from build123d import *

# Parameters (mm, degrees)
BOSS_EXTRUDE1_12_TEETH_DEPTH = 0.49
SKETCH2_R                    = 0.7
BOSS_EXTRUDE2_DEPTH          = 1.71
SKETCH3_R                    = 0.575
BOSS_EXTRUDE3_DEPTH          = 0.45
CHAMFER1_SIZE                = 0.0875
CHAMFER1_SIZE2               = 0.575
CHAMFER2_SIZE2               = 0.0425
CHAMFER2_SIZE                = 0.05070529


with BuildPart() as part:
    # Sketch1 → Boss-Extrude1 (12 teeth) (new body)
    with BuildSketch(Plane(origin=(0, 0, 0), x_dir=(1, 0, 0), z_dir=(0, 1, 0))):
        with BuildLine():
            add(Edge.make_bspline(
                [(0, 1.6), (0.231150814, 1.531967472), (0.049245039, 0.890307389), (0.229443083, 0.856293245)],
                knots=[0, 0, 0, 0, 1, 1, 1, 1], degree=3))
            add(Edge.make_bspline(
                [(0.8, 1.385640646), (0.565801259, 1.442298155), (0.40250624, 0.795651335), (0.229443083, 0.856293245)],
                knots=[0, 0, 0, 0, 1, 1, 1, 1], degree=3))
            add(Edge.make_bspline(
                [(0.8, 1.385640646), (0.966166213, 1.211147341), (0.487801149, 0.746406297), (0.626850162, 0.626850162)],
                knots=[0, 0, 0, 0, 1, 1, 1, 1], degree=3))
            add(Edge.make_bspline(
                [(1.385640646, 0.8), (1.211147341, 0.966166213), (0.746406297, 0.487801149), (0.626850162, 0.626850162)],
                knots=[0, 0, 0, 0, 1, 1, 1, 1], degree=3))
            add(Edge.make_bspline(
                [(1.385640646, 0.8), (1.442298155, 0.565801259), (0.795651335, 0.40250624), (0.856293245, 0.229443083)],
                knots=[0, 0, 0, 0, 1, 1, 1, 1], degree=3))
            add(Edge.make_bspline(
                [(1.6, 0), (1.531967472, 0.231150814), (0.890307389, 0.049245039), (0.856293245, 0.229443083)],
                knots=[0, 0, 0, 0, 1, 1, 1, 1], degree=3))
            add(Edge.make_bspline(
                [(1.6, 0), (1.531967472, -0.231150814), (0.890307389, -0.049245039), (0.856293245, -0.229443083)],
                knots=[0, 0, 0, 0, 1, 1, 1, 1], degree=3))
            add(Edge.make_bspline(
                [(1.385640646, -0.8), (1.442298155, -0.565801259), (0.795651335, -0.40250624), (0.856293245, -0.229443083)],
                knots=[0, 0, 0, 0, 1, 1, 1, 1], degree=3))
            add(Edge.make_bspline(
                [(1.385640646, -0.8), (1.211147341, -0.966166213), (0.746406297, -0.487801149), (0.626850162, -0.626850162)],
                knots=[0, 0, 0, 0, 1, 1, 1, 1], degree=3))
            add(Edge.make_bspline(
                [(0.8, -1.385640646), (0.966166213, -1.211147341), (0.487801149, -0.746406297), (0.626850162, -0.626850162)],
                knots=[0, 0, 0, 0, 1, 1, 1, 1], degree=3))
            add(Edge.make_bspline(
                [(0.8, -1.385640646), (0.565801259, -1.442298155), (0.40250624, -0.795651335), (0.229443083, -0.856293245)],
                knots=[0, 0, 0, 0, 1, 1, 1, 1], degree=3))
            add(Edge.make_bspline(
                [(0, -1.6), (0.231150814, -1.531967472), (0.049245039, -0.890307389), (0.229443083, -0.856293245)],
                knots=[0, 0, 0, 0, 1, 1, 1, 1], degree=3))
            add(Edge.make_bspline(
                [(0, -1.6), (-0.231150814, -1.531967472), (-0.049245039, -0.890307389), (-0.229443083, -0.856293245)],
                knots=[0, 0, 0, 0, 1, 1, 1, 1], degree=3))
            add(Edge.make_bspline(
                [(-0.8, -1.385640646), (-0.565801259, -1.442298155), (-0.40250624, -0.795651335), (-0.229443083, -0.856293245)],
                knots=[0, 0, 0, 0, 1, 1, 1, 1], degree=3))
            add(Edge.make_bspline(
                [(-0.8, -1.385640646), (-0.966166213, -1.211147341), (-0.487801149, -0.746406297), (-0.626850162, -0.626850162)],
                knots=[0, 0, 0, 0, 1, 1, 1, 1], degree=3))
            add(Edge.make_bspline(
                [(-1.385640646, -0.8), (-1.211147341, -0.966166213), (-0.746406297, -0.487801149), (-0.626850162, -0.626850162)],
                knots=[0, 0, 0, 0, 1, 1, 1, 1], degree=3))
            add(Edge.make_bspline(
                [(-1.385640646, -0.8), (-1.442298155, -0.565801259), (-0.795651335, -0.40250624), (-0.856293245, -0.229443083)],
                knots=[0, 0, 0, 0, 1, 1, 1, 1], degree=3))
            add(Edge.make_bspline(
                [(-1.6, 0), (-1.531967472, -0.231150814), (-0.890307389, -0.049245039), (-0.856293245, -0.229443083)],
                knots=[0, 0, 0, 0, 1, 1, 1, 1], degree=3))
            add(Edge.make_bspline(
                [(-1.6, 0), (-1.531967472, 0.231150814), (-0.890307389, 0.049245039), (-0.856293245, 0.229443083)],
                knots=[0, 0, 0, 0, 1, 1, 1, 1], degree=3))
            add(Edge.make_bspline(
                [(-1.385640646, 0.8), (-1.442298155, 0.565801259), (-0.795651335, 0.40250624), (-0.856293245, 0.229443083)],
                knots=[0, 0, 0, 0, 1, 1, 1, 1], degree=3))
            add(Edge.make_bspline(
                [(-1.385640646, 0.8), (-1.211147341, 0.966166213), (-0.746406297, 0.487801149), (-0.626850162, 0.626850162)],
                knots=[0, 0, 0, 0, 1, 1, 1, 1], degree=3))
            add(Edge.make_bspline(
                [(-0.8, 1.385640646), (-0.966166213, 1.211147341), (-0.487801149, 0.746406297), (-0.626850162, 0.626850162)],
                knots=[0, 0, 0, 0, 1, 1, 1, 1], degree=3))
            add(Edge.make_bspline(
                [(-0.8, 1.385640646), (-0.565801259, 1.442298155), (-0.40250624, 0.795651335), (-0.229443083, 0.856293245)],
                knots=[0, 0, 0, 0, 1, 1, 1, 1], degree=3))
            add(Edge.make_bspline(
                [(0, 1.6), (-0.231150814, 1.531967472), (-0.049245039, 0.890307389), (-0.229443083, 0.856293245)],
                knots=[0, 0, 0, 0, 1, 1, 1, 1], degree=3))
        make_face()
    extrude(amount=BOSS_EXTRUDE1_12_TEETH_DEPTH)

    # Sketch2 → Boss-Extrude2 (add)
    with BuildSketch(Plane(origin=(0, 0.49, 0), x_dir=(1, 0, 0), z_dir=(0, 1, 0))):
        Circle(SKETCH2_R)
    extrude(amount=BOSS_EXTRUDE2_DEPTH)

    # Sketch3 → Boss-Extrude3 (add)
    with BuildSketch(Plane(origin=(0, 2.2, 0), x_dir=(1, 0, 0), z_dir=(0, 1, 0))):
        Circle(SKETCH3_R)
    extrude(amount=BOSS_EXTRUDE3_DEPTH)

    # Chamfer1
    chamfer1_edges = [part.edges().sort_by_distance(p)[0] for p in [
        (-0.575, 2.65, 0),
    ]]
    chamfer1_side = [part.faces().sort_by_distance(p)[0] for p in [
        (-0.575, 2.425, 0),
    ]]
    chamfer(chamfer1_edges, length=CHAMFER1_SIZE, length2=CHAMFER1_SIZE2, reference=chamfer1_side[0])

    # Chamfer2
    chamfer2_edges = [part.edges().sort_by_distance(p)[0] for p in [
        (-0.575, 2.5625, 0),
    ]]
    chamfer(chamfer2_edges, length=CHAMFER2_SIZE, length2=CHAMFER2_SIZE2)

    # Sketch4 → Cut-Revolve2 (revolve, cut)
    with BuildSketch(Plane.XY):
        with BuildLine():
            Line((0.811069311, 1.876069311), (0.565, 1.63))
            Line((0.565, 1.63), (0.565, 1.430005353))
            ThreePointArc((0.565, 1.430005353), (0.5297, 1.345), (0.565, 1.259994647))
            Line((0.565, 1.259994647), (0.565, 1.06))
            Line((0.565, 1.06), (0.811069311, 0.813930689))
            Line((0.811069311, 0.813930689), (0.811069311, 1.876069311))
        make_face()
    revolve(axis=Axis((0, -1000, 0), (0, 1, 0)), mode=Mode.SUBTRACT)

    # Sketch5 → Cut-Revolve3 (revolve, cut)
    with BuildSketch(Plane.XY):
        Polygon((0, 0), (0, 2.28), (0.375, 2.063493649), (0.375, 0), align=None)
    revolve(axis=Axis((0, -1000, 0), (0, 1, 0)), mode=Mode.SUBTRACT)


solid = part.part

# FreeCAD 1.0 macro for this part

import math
import FreeCAD as App
import Part
import Sketcher

V = App.Vector
Q = App.Units.Quantity


def edges_at(feature, points):
    """Names of the edges that pass closest to the given points."""
    edges = feature.Shape.Edges
    near = lambda p: min(range(len(edges)), key=lambda i: edges[i].distToShape(Part.Vertex(*p))[0])
    return sorted({f"Edge{near(p) + 1}" for p in points})

doc = App.newDocument("Part")
params = doc.addObject("Spreadsheet::Sheet", "Params")
for row, (alias, value) in enumerate([
    ("pad1_length", "0.49 mm"),
    ("sketch2_diameter", "1.4 mm"),
    ("pad2_length", "1.71 mm"),
    ("sketch3_diameter", "1.15 mm"),
    ("pad3_length", "0.45 mm"),
    ("chamfer_size", "0.0875 mm"),
    ("chamfer_size2", "0.575 mm"),
    ("chamfer2_size", "0.050705 mm"),
    ("chamfer2_size2", "0.0425 mm"),
    ("sketch4_radius", "0.12 mm"),
    ("groove_angle", "360 deg"),
    ("sketch5_height", "2.28 mm"),
    ("groove2_angle", "360 deg"),
], start=1):
    params.set(f"A{row}", alias)
    params.set(f"B{row}", "=" + value)
    params.setAlias(f"B{row}", alias)

body = doc.addObject("PartDesign::Body", "Body")

sketch1 = body.newObject("Sketcher::SketchObject", "Sketch")
sketch1.AttachmentSupport = (doc.getObject("XZ_Plane"), [""])
sketch1.MapMode = "FlatFace"
sketch1.addGeometry(Part.BSplineCurve([V(0, -1.6, 0), V(0.231151, -1.531967, 0), V(0.049245, -0.890307, 0), V(0.229443, -0.856293, 0)], [4, 4], [0, 1], False, 3, [1, 1, 1, 1], False), False)
sketch1.addGeometry(Part.BSplineCurve([V(0, -1.6, 0), V(-0.231151, -1.531967, 0), V(-0.049245, -0.890307, 0), V(-0.229443, -0.856293, 0)], [4, 4], [0, 1], False, 3, [1, 1, 1, 1], False), False)
sketch1.addGeometry(Part.BSplineCurve([V(-0.8, -1.385641, 0), V(-0.565801, -1.442298, 0), V(-0.402506, -0.795651, 0), V(-0.229443, -0.856293, 0)], [4, 4], [0, 1], False, 3, [1, 1, 1, 1], False), False)
sketch1.addGeometry(Part.BSplineCurve([V(-0.8, -1.385641, 0), V(-0.966166, -1.211147, 0), V(-0.487801, -0.746406, 0), V(-0.62685, -0.62685, 0)], [4, 4], [0, 1], False, 3, [1, 1, 1, 1], False), False)
sketch1.addGeometry(Part.BSplineCurve([V(-1.385641, -0.8, 0), V(-1.211147, -0.966166, 0), V(-0.746406, -0.487801, 0), V(-0.62685, -0.62685, 0)], [4, 4], [0, 1], False, 3, [1, 1, 1, 1], False), False)
sketch1.addGeometry(Part.BSplineCurve([V(-1.385641, -0.8, 0), V(-1.442298, -0.565801, 0), V(-0.795651, -0.402506, 0), V(-0.856293, -0.229443, 0)], [4, 4], [0, 1], False, 3, [1, 1, 1, 1], False), False)
sketch1.addGeometry(Part.BSplineCurve([V(-1.6, 0, 0), V(-1.531967, -0.231151, 0), V(-0.890307, -0.049245, 0), V(-0.856293, -0.229443, 0)], [4, 4], [0, 1], False, 3, [1, 1, 1, 1], False), False)
sketch1.addGeometry(Part.BSplineCurve([V(-1.6, 0, 0), V(-1.531967, 0.231151, 0), V(-0.890307, 0.049245, 0), V(-0.856293, 0.229443, 0)], [4, 4], [0, 1], False, 3, [1, 1, 1, 1], False), False)
sketch1.addGeometry(Part.BSplineCurve([V(-1.385641, 0.8, 0), V(-1.442298, 0.565801, 0), V(-0.795651, 0.402506, 0), V(-0.856293, 0.229443, 0)], [4, 4], [0, 1], False, 3, [1, 1, 1, 1], False), False)
sketch1.addGeometry(Part.BSplineCurve([V(-1.385641, 0.8, 0), V(-1.211147, 0.966166, 0), V(-0.746406, 0.487801, 0), V(-0.62685, 0.62685, 0)], [4, 4], [0, 1], False, 3, [1, 1, 1, 1], False), False)
sketch1.addGeometry(Part.BSplineCurve([V(-0.8, 1.385641, 0), V(-0.966166, 1.211147, 0), V(-0.487801, 0.746406, 0), V(-0.62685, 0.62685, 0)], [4, 4], [0, 1], False, 3, [1, 1, 1, 1], False), False)
sketch1.addGeometry(Part.BSplineCurve([V(-0.8, 1.385641, 0), V(-0.565801, 1.442298, 0), V(-0.402506, 0.795651, 0), V(-0.229443, 0.856293, 0)], [4, 4], [0, 1], False, 3, [1, 1, 1, 1], False), False)
sketch1.addGeometry(Part.BSplineCurve([V(0, 1.6, 0), V(-0.231151, 1.531967, 0), V(-0.049245, 0.890307, 0), V(-0.229443, 0.856293, 0)], [4, 4], [0, 1], False, 3, [1, 1, 1, 1], False), False)
sketch1.addGeometry(Part.BSplineCurve([V(0, 1.6, 0), V(0.231151, 1.531967, 0), V(0.049245, 0.890307, 0), V(0.229443, 0.856293, 0)], [4, 4], [0, 1], False, 3, [1, 1, 1, 1], False), False)
sketch1.addGeometry(Part.BSplineCurve([V(0.8, 1.385641, 0), V(0.565801, 1.442298, 0), V(0.402506, 0.795651, 0), V(0.229443, 0.856293, 0)], [4, 4], [0, 1], False, 3, [1, 1, 1, 1], False), False)
sketch1.addGeometry(Part.BSplineCurve([V(0.8, 1.385641, 0), V(0.966166, 1.211147, 0), V(0.487801, 0.746406, 0), V(0.62685, 0.62685, 0)], [4, 4], [0, 1], False, 3, [1, 1, 1, 1], False), False)
sketch1.addGeometry(Part.BSplineCurve([V(1.385641, 0.8, 0), V(1.211147, 0.966166, 0), V(0.746406, 0.487801, 0), V(0.62685, 0.62685, 0)], [4, 4], [0, 1], False, 3, [1, 1, 1, 1], False), False)
sketch1.addGeometry(Part.BSplineCurve([V(1.385641, 0.8, 0), V(1.442298, 0.565801, 0), V(0.795651, 0.402506, 0), V(0.856293, 0.229443, 0)], [4, 4], [0, 1], False, 3, [1, 1, 1, 1], False), False)
sketch1.addGeometry(Part.BSplineCurve([V(1.6, 0, 0), V(1.531967, 0.231151, 0), V(0.890307, 0.049245, 0), V(0.856293, 0.229443, 0)], [4, 4], [0, 1], False, 3, [1, 1, 1, 1], False), False)
sketch1.addGeometry(Part.BSplineCurve([V(1.6, 0, 0), V(1.531967, -0.231151, 0), V(0.890307, -0.049245, 0), V(0.856293, -0.229443, 0)], [4, 4], [0, 1], False, 3, [1, 1, 1, 1], False), False)
sketch1.addGeometry(Part.BSplineCurve([V(1.385641, -0.8, 0), V(1.442298, -0.565801, 0), V(0.795651, -0.402506, 0), V(0.856293, -0.229443, 0)], [4, 4], [0, 1], False, 3, [1, 1, 1, 1], False), False)
sketch1.addGeometry(Part.BSplineCurve([V(1.385641, -0.8, 0), V(1.211147, -0.966166, 0), V(0.746406, -0.487801, 0), V(0.62685, -0.62685, 0)], [4, 4], [0, 1], False, 3, [1, 1, 1, 1], False), False)
sketch1.addGeometry(Part.BSplineCurve([V(0.8, -1.385641, 0), V(0.966166, -1.211147, 0), V(0.487801, -0.746406, 0), V(0.62685, -0.62685, 0)], [4, 4], [0, 1], False, 3, [1, 1, 1, 1], False), False)
sketch1.addGeometry(Part.BSplineCurve([V(0.8, -1.385641, 0), V(0.565801, -1.442298, 0), V(0.402506, -0.795651, 0), V(0.229443, -0.856293, 0)], [4, 4], [0, 1], False, 3, [1, 1, 1, 1], False), False)
sketch1.addConstraint(Sketcher.Constraint("Block", 0))
sketch1.addConstraint(Sketcher.Constraint("Block", 1))
sketch1.addConstraint(Sketcher.Constraint("Block", 2))
sketch1.addConstraint(Sketcher.Constraint("Block", 3))
sketch1.addConstraint(Sketcher.Constraint("Block", 4))
sketch1.addConstraint(Sketcher.Constraint("Block", 5))
sketch1.addConstraint(Sketcher.Constraint("Block", 6))
sketch1.addConstraint(Sketcher.Constraint("Block", 7))
sketch1.addConstraint(Sketcher.Constraint("Block", 8))
sketch1.addConstraint(Sketcher.Constraint("Block", 9))
sketch1.addConstraint(Sketcher.Constraint("Block", 10))
sketch1.addConstraint(Sketcher.Constraint("Block", 11))
sketch1.addConstraint(Sketcher.Constraint("Block", 12))
sketch1.addConstraint(Sketcher.Constraint("Block", 13))
sketch1.addConstraint(Sketcher.Constraint("Block", 14))
sketch1.addConstraint(Sketcher.Constraint("Block", 15))
sketch1.addConstraint(Sketcher.Constraint("Block", 16))
sketch1.addConstraint(Sketcher.Constraint("Block", 17))
sketch1.addConstraint(Sketcher.Constraint("Block", 18))
sketch1.addConstraint(Sketcher.Constraint("Block", 19))
sketch1.addConstraint(Sketcher.Constraint("Block", 20))
sketch1.addConstraint(Sketcher.Constraint("Block", 21))
sketch1.addConstraint(Sketcher.Constraint("Block", 22))
sketch1.addConstraint(Sketcher.Constraint("Block", 23))
pad1 = body.newObject("PartDesign::Pad", "Pad")
pad1.Profile = sketch1
pad1.setExpression("Length", "Params.pad1_length")
pad1.Reversed = True

sketch2 = body.newObject("Sketcher::SketchObject", "Sketch001")
sketch2.AttachmentSupport = (doc.getObject("XZ_Plane"), [""])
sketch2.MapMode = "FlatFace"
sketch2.AttachmentOffset = App.Placement(V(0, 0, -0.49), App.Rotation())
sketch2.addGeometry(Part.Circle(V(0, 0, 0), V(0, 0, 1), 0.7), False)
sketch2.addConstraint(Sketcher.Constraint("Coincident", 0, 3, -1, 1))
sketch2.addConstraint(Sketcher.Constraint("Diameter", 0, 1.4))
sketch2.setExpression("Constraints[1]", "Params.sketch2_diameter")
pad2 = body.newObject("PartDesign::Pad", "Pad001")
pad2.Profile = sketch2
pad2.setExpression("Length", "Params.pad2_length")
pad2.Reversed = True

sketch3 = body.newObject("Sketcher::SketchObject", "Sketch002")
sketch3.AttachmentSupport = (doc.getObject("XZ_Plane"), [""])
sketch3.MapMode = "FlatFace"
sketch3.AttachmentOffset = App.Placement(V(0, 0, -2.2), App.Rotation())
sketch3.addGeometry(Part.Circle(V(0, 0, 0), V(0, 0, 1), 0.6), False)
sketch3.addConstraint(Sketcher.Constraint("Coincident", 0, 3, -1, 1))
sketch3.addConstraint(Sketcher.Constraint("Diameter", 0, 1.15))
sketch3.setExpression("Constraints[1]", "Params.sketch3_diameter")
pad3 = body.newObject("PartDesign::Pad", "Pad002")
pad3.Profile = sketch3
pad3.setExpression("Length", "Params.pad3_length")
pad3.Reversed = True
doc.recompute()

chamfer = body.newObject("PartDesign::Chamfer", "Chamfer")
chamfer.Base = (pad3, edges_at(pad3, [(-0.575, 2.65, 0)]))
chamfer.ChamferType = "Two distances"
chamfer.setExpression("Size", "Params.chamfer_size")
chamfer.setExpression("Size2", "Params.chamfer_size2")
doc.recompute()

chamfer2 = body.newObject("PartDesign::Chamfer", "Chamfer001")
chamfer2.Base = (chamfer, edges_at(chamfer, [(-0.575, 2.562, 0)]))
chamfer2.ChamferType = "Two distances"
chamfer2.setExpression("Size", "Params.chamfer2_size")
chamfer2.setExpression("Size2", "Params.chamfer2_size2")

sketch4 = body.newObject("Sketcher::SketchObject", "Sketch003")
sketch4.AttachmentSupport = (doc.getObject("XY_Plane"), [""])
sketch4.MapMode = "FlatFace"
sketch4.addGeometry(Part.LineSegment(V(0.81, 1.88, 0), V(0.56, 1.63, 0)), False)
sketch4.addGeometry(Part.LineSegment(V(0.56, 1.63, 0), V(0.56, 1.43, 0)), False)
sketch4.addGeometry(Part.ArcOfCircle(Part.Circle(V(0.65, 1.34, 0), V(0, 0, 1), 0.12), math.radians(135), math.radians(225)), False)
sketch4.addGeometry(Part.LineSegment(V(0.56, 1.26, 0), V(0.56, 1.06, 0)), False)
sketch4.addGeometry(Part.LineSegment(V(0.56, 1.06, 0), V(0.81, 0.81, 0)), False)
sketch4.addGeometry(Part.LineSegment(V(0.81, 0.81, 0), V(0.81, 1.88, 0)), False)
sketch4.addConstraint(Sketcher.Constraint("Coincident", 0, 2, 1, 1))
sketch4.addConstraint(Sketcher.Constraint("Coincident", 1, 2, 2, 1))
sketch4.addConstraint(Sketcher.Constraint("Coincident", 2, 2, 3, 1))
sketch4.addConstraint(Sketcher.Constraint("Coincident", 3, 2, 4, 1))
sketch4.addConstraint(Sketcher.Constraint("Coincident", 4, 2, 5, 1))
sketch4.addConstraint(Sketcher.Constraint("Coincident", 5, 2, 0, 1))
sketch4.addConstraint(Sketcher.Constraint("Vertical", 1))
sketch4.addConstraint(Sketcher.Constraint("Vertical", 3))
sketch4.addConstraint(Sketcher.Constraint("Vertical", 5))
sketch4.addConstraint(Sketcher.Constraint("Perpendicular", 0, 4))
sketch4.addConstraint(Sketcher.Constraint("Vertical", 1, 2, 2, 2))
sketch4.addConstraint(Sketcher.Constraint("Equal", 1, 3))
sketch4.addConstraint(Sketcher.Constraint("Equal", 0, 4))
sketch4.addConstraint(Sketcher.Constraint("Radius", 2, 0.12))
sketch4.addConstraint(Sketcher.Constraint("DistanceY", -1, 1, 0, 2, 1.63))
sketch4.addConstraint(Sketcher.Constraint("DistanceY", -1, 1, 3, 2, 1.06))
sketch4.addConstraint(Sketcher.Constraint("DistanceX", -1, 1, 0, 2, 0.565))
sketch4.addConstraint(Sketcher.Constraint("DistanceY", 5, 1, 5, 2, 1.062139))
sketch4.addConstraint(Sketcher.Constraint("DistanceX", -1, 1, 2, 3, 0.6497))
sketch4.setExpression("Constraints[13]", "Params.sketch4_radius")
groove = body.newObject("PartDesign::Groove", "Groove")
groove.Profile = sketch4
groove.ReferenceAxis = (sketch4, ["V_Axis"])
groove.setExpression("Angle", "Params.groove_angle")

sketch5 = body.newObject("Sketcher::SketchObject", "Sketch004")
sketch5.AttachmentSupport = (doc.getObject("XY_Plane"), [""])
sketch5.MapMode = "FlatFace"
sketch5.addGeometry(Part.LineSegment(V(0, 2.28, 0), V(0, 0, 0)), False)
sketch5.addGeometry(Part.LineSegment(V(0, 0, 0), V(0.38, 0, 0)), False)
sketch5.addGeometry(Part.LineSegment(V(0.38, 0, 0), V(0.38, 2.06, 0)), False)
sketch5.addGeometry(Part.LineSegment(V(0.38, 2.06, 0), V(0, 2.28, 0)), False)
sketch5.addConstraint(Sketcher.Constraint("Coincident", 0, 2, 1, 1))
sketch5.addConstraint(Sketcher.Constraint("Coincident", 1, 2, 2, 1))
sketch5.addConstraint(Sketcher.Constraint("Coincident", 2, 2, 3, 1))
sketch5.addConstraint(Sketcher.Constraint("Coincident", 3, 2, 0, 1))
sketch5.addConstraint(Sketcher.Constraint("Vertical", 0))
sketch5.addConstraint(Sketcher.Constraint("Horizontal", 1))
sketch5.addConstraint(Sketcher.Constraint("Vertical", 2))
sketch5.addConstraint(Sketcher.Constraint("Coincident", 0, 2, -1, 1))
sketch5.addConstraint(Sketcher.Constraint("Angle", 3, Q("150 deg")))
sketch5.addConstraint(Sketcher.Constraint("DistanceY", 0, 2, 0, 1, 2.28))
sketch5.addConstraint(Sketcher.Constraint("DistanceX", 1, 1, 1, 2, 0.375))
sketch5.setExpression("Constraints[9]", "Params.sketch5_height")
groove2 = body.newObject("PartDesign::Groove", "Groove001")
groove2.Profile = sketch5
groove2.ReferenceAxis = (sketch5, ["V_Axis"])
groove2.setExpression("Angle", "Params.groove2_angle")

doc.recompute()
